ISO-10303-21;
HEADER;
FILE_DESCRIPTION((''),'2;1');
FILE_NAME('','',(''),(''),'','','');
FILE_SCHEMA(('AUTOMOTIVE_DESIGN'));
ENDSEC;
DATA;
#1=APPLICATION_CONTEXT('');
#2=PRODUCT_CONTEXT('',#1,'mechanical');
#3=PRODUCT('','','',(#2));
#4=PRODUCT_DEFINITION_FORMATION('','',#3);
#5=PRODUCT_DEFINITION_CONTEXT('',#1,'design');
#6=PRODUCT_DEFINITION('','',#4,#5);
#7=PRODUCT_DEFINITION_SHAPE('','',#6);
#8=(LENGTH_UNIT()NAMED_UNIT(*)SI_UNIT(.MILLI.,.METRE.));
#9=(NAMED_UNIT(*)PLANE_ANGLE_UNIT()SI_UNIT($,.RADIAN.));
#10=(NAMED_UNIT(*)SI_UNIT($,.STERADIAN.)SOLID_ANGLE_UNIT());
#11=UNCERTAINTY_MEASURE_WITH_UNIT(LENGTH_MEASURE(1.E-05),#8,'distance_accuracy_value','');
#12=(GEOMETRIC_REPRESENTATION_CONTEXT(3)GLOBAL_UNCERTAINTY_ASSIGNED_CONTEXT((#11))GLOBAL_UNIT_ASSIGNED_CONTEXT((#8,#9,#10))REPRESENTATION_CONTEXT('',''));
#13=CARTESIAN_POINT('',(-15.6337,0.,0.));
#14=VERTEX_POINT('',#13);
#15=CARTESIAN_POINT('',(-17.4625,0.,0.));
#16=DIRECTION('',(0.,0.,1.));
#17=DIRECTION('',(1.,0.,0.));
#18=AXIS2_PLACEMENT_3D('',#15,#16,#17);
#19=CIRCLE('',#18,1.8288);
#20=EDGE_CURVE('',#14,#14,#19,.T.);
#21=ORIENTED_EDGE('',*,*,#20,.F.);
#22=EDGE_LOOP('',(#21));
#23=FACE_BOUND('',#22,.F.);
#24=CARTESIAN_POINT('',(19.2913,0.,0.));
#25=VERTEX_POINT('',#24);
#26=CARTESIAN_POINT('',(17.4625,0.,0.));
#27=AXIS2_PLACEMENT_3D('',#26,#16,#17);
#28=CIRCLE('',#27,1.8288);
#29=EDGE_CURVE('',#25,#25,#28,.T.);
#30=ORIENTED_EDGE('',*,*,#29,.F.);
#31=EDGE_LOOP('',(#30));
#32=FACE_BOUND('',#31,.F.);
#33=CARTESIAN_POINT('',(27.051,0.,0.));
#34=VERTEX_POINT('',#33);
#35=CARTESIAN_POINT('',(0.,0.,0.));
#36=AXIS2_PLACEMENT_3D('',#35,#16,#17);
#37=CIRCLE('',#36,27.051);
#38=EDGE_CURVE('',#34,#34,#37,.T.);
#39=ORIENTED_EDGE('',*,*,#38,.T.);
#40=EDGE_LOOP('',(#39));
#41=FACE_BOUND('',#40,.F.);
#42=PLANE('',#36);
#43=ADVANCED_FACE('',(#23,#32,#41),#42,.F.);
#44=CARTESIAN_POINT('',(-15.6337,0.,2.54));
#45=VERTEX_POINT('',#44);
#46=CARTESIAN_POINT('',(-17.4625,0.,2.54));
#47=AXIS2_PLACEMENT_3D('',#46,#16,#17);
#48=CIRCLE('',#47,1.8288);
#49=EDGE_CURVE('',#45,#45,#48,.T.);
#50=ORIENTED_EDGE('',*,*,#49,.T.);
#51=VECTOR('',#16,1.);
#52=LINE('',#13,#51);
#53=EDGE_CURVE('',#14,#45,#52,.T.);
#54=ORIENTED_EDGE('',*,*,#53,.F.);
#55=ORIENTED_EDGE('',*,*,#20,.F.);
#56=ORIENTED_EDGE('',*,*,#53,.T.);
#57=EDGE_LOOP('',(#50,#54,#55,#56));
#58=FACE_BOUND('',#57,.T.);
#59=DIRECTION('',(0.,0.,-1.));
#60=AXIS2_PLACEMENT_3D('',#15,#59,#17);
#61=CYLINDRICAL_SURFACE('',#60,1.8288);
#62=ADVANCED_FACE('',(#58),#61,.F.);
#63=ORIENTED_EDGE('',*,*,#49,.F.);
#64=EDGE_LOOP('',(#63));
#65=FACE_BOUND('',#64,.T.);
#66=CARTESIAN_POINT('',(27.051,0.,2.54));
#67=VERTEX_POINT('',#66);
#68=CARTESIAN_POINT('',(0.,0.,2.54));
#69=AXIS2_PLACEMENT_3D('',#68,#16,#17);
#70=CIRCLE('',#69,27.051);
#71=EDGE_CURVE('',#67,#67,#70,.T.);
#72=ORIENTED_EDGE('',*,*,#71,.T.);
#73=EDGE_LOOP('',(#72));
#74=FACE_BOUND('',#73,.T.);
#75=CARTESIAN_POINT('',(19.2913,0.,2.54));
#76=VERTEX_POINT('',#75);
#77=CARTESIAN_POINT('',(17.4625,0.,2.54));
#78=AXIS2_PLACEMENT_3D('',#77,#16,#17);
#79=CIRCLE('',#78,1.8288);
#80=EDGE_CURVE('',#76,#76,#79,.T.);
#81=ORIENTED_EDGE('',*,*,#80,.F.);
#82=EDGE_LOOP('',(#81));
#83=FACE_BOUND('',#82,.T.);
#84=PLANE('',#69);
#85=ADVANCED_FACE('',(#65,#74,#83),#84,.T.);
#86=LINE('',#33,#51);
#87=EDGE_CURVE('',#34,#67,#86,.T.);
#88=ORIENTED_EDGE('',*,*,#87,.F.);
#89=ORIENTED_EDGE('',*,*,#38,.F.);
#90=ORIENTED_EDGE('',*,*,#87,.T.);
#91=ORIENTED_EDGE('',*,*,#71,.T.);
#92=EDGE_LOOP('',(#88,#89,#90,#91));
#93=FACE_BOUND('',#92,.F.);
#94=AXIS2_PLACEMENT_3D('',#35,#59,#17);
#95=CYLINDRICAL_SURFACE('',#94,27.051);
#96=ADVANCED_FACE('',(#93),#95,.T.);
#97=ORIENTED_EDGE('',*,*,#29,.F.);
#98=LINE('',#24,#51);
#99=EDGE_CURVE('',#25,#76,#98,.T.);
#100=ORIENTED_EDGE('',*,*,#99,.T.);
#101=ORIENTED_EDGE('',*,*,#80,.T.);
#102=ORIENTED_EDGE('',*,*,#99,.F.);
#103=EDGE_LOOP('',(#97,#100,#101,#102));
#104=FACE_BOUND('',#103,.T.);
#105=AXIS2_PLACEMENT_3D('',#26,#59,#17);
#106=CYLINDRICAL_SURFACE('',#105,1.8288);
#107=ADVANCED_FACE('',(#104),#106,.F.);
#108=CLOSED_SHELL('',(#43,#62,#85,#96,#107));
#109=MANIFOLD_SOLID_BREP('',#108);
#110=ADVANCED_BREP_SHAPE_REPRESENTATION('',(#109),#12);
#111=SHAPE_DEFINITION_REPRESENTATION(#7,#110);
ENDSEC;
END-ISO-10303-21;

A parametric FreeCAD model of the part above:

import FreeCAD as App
import Part
import Sketcher
Q = App.Units.Quantity

doc = App.newDocument("Part")
body = doc.addObject("PartDesign::Body", "Body")

sketch1 = body.newObject("Sketcher::SketchObject", "Sketch")
sketch1.AttachmentSupport = (doc.getObject("XY_Plane"), [""])
sketch1.MapMode = "FlatFace"
sketch1.addGeometry([
    Part.Circle(App.Vector(0, 0, 0), App.Vector(0, 0, 1), 27.1),
    Part.Circle(App.Vector(-17.5, 0, 0), App.Vector(0, 0, 1), 1.8),
    Part.Circle(App.Vector(17.5, 0, 0), App.Vector(0, 0, 1), 1.8),
], False)
sketch1.addConstraint([
    Sketcher.Constraint("Coincident", 0, 3, -1, 1),
    Sketcher.Constraint("Equal", 1, 2),
    Sketcher.Constraint("Symmetric", 1, 3, 2, 3, -1, 1),
    Sketcher.Constraint("PointOnObject", 1, 3, -1),
    Sketcher.Constraint("Diameter", 0, Q("2.13 in")),
    Sketcher.Constraint("Diameter", 1, Q("0.144 in")),
    Sketcher.Constraint("DistanceX", 1, 3, -1, 1, Q("0.6875 in")),
])
pad1 = body.newObject("PartDesign::Pad", "Pad")
pad1.Profile = sketch1
pad1.Length = Q("0.1 in")

doc.recompute()
